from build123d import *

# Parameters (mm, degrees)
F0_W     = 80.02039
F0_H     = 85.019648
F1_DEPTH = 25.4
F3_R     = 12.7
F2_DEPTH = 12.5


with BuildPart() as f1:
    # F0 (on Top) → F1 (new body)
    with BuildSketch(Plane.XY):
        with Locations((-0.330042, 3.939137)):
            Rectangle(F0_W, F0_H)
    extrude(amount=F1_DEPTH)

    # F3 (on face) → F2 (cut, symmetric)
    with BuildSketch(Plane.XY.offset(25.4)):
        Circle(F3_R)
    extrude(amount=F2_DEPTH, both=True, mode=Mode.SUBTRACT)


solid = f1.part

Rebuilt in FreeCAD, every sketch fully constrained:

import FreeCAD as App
import Part
import Sketcher
from FreeCAD import Vector
Q = App.Units.Quantity


def add_polygon(sketch, points):
    """Adds a closed chain of lines whose ends are joined by coincident constraints."""
    first, n = sketch.GeometryCount, len(points)
    for a, b in zip(points, points[1:] + points[:1]):
        sketch.addGeometry(Part.LineSegment(App.Vector(*a, 0), App.Vector(*b, 0)), False)
    for i in range(n):
        sketch.addConstraint(Sketcher.Constraint("Coincident", first + i, 2, first + (i + 1) % n, 1))

doc = App.newDocument("Part")
body = doc.addObject("PartDesign::Body", "Body")

sketch1 = body.newObject("Sketcher::SketchObject", "Sketch")
sketch1.AttachmentSupport = (doc.getObject("XY_Plane"), [""])
sketch1.MapMode = "FlatFace"
add_polygon(sketch1, [(-40, 46), (-40, -39), (40, -39), (40, 46)])
sketch1.addConstraint(Sketcher.Constraint("Vertical", 0))
sketch1.addConstraint(Sketcher.Constraint("Horizontal", 1))
sketch1.addConstraint(Sketcher.Constraint("Vertical", 2))
sketch1.addConstraint(Sketcher.Constraint("Horizontal", 3))
sketch1.addConstraint(Sketcher.Constraint("DistanceX", 1, 1, 1, 2, Q("80.02039 mm")))
sketch1.addConstraint(Sketcher.Constraint("DistanceY", 0, 2, 0, 1, Q("85.019648 mm")))
sketch1.addConstraint(Sketcher.Constraint("DistanceY", -1, 1, 2, 2, Q("46.448961 mm")))
sketch1.addConstraint(Sketcher.Constraint("DistanceX", 0, 2, -1, 1, Q("40.340237 mm")))
pad1 = body.newObject("PartDesign::Pad", "Pad")
pad1.Profile = sketch1
pad1.Length = 25.4

sketch2 = body.newObject("Sketcher::SketchObject", "Sketch001")
sketch2.AttachmentSupport = (doc.getObject("XY_Plane"), [""])
sketch2.MapMode = "FlatFace"
sketch2.AttachmentOffset = App.Placement(Vector(0, 0, 25.4), App.Rotation())
sketch2.addGeometry(Part.Circle(Vector(0, 0, 0), Vector(0, 0, 1), 13), False)
sketch2.addConstraint(Sketcher.Constraint("Coincident", 0, 3, -1, 1))
sketch2.addConstraint(Sketcher.Constraint("Diameter", 0, Q("25.4 mm")))
pocket1 = body.newObject("PartDesign::Pocket", "Pocket")
pocket1.Profile = sketch2
pocket1.Length = 25
pocket1.Midplane = True

doc.recompute()
